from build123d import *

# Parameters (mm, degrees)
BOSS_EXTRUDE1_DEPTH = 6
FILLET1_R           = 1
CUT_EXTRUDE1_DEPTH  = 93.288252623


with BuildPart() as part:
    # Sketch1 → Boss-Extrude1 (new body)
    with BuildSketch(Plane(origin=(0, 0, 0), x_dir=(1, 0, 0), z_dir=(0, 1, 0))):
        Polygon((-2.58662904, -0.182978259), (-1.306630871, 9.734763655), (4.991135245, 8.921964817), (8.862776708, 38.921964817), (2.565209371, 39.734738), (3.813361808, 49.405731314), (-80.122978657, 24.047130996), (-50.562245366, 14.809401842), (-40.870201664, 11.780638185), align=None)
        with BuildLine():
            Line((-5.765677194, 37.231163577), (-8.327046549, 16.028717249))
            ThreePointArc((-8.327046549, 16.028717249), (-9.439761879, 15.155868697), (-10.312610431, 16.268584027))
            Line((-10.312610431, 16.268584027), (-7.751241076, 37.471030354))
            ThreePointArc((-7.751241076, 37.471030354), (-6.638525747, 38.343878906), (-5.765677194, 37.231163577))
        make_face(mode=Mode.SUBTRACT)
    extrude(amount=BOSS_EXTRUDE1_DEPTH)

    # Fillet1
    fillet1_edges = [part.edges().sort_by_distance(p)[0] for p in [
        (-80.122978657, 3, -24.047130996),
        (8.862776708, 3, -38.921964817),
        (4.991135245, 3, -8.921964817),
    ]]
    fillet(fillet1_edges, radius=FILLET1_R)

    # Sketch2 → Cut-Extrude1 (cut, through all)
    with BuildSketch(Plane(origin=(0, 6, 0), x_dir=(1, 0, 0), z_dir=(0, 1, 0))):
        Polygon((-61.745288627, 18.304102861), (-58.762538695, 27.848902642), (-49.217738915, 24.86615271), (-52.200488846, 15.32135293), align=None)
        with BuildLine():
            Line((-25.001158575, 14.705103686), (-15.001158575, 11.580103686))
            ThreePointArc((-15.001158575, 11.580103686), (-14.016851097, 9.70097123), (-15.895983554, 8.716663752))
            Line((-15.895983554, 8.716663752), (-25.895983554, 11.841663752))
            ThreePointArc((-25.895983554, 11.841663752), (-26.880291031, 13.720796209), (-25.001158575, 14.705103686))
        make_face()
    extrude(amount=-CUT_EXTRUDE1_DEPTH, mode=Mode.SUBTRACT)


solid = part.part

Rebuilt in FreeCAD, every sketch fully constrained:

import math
import FreeCAD as App
import Part
import Sketcher

V = App.Vector


def edges_at(feature, points):
    """Names of the edges that pass closest to the given points."""
    edges = feature.Shape.Edges
    near = lambda p: min(range(len(edges)), key=lambda i: edges[i].distToShape(Part.Vertex(*p))[0])
    return sorted({f"Edge{near(p) + 1}" for p in points})


def add_polygon(sketch, points):
    """Adds a closed chain of lines whose ends are joined by coincident constraints."""
    first, n = sketch.GeometryCount, len(points)
    for a, b in zip(points, points[1:] + points[:1]):
        sketch.addGeometry(Part.LineSegment(App.Vector(*a, 0), App.Vector(*b, 0)), False)
    for i in range(n):
        sketch.addConstraint(Sketcher.Constraint("Coincident", first + i, 2, first + (i + 1) % n, 1))

doc = App.newDocument("Part")
body = doc.addObject("PartDesign::Body", "Body")

sketch1 = body.newObject("Sketcher::SketchObject", "Sketch")
sketch1.AttachmentSupport = (doc.getObject("XZ_Plane"), [""])
sketch1.MapMode = "FlatFace"
add_polygon(sketch1, [(-2.6, 0.2), (-1.3, -9.7), (5, -8.9), (8.9, -38.9), (2.6, -39.7), (3.8, -49.4), (-80.1, -24), (-50.6, -14.8), (-40.9, -11.8)])
sketch1.addGeometry(Part.ArcOfCircle(Part.Circle(V(-6.8, -37.4, 0), V(0, 0, 1), 1), math.radians(-173), math.radians(7)), False)
sketch1.addGeometry(Part.LineSegment(V(-5.8, -37.2, 0), V(-8.3, -16, 0)), False)
sketch1.addGeometry(Part.ArcOfCircle(Part.Circle(V(-9.3, -16.1, 0), V(0, 0, 1), 1), math.radians(7), math.radians(187)), False)
sketch1.addGeometry(Part.LineSegment(V(-10.3, -16.3, 0), V(-7.8, -37.5, 0)), False)
sketch1.addConstraint(Sketcher.Constraint("Tangent", 9, 2, 10, 1))
sketch1.addConstraint(Sketcher.Constraint("Tangent", 10, 2, 11, 1))
sketch1.addConstraint(Sketcher.Constraint("Tangent", 11, 2, 12, 1))
sketch1.addConstraint(Sketcher.Constraint("Tangent", 12, 2, 9, 1))
sketch1.addConstraint(Sketcher.Constraint("Equal", 9, 11))
sketch1.addConstraint(Sketcher.Constraint("Perpendicular", 0, 1))
sketch1.addConstraint(Sketcher.Constraint("Parallel", 1, 3))
sketch1.addConstraint(Sketcher.Constraint("Perpendicular", 3, 4))
sketch1.addConstraint(Sketcher.Constraint("Parallel", 6, 7))
sketch1.addConstraint(Sketcher.Constraint("Parallel", 7, 8))
sketch1.addConstraint(Sketcher.Constraint("Radius", 9, 1.0))
sketch1.addConstraint(Sketcher.Constraint("Distance", 0, 10.0))
sketch1.addConstraint(Sketcher.Constraint("DistanceY", 2, 2, 1, 2, 30.0))
sketch1.addConstraint(Sketcher.Constraint("Distance", 1, 6.35))
sketch1.addConstraint(Sketcher.Constraint("DistanceX", 8, 2, 0, 2, 1.279998))
sketch1.addConstraint(Sketcher.Constraint("Distance", 3, 6.3498))
sketch1.addConstraint(Sketcher.Constraint("Distance", 10, 21.3566))
sketch1.addConstraint(Sketcher.Constraint("DistanceY", 6, 2, -1, 1, 14.809402))
sketch1.addConstraint(Sketcher.Constraint("DistanceX", 7, 2, -1, 1, 40.870202))
sketch1.addConstraint(Sketcher.Constraint("DistanceX", 11, 3, 8, 2, 6.733199))
sketch1.addConstraint(Sketcher.Constraint("DistanceY", 2, 2, 9, 2, 1.690801))
sketch1.addConstraint(Sketcher.Constraint("DistanceY", 4, 2, 12, 2, 11.934701))
sketch1.addConstraint(Sketcher.Constraint("Distance", 5, 87.683339))
sketch1.addConstraint(Sketcher.Constraint("Distance", 6, 30.970512))
sketch1.addConstraint(Sketcher.Constraint("Distance", 8, 40.109351))
sketch1.addConstraint(Sketcher.Constraint("DistanceX", 9, 3, -1, 1, 6.758459))
sketch1.addConstraint(Sketcher.Constraint("DistanceX", 11, 3, -1, 1, 9.319828))
sketch1.addConstraint(Sketcher.Constraint("DistanceY", 11, 3, -1, 1, 16.148651))
pad1 = body.newObject("PartDesign::Pad", "Pad")
pad1.Profile = sketch1
pad1.Length = 6
pad1.Reversed = True
doc.recompute()

fillet = body.newObject("PartDesign::Fillet", "Fillet")
fillet.Base = (pad1, edges_at(pad1, [(-80.123, 3, -24.047), (8.863, 3, -38.922), (4.991, 3, -8.922)]))
fillet.Radius = 1

sketch2 = body.newObject("Sketcher::SketchObject", "Sketch001")
sketch2.AttachmentSupport = (doc.getObject("XZ_Plane"), [""])
sketch2.MapMode = "FlatFace"
sketch2.AttachmentOffset = App.Placement(V(0, 0, -6), App.Rotation())
add_polygon(sketch2, [(-58.8, -27.8), (-61.7, -18.3), (-52.2, -15.3), (-49.2, -24.9)])
sketch2.addGeometry(Part.LineSegment(V(-15, -11.6, 0), V(-25, -14.7, 0)), False)
sketch2.addGeometry(Part.ArcOfCircle(Part.Circle(V(-25.4, -13.3, 0), V(0, 0, 1), 1.5), math.radians(107), math.radians(287)), False)
sketch2.addGeometry(Part.LineSegment(V(-25.9, -11.8, 0), V(-15.9, -8.7, 0)), False)
sketch2.addGeometry(Part.ArcOfCircle(Part.Circle(V(-15.4, -10.1, 0), V(0, 0, 1), 1.5), math.radians(-73), math.radians(107)), False)
sketch2.addConstraint(Sketcher.Constraint("Tangent", 4, 2, 5, 2))
sketch2.addConstraint(Sketcher.Constraint("Tangent", 5, 1, 6, 1))
sketch2.addConstraint(Sketcher.Constraint("Tangent", 6, 2, 7, 2))
sketch2.addConstraint(Sketcher.Constraint("Tangent", 7, 1, 4, 1))
sketch2.addConstraint(Sketcher.Constraint("Equal", 5, 7))
sketch2.addConstraint(Sketcher.Constraint("Perpendicular", 0, 1))
sketch2.addConstraint(Sketcher.Constraint("Perpendicular", 1, 2))
sketch2.addConstraint(Sketcher.Constraint("Perpendicular", 2, 3))
sketch2.addConstraint(Sketcher.Constraint("Parallel", 3, 4))
sketch2.addConstraint(Sketcher.Constraint("Equal", 0, 1))
sketch2.addConstraint(Sketcher.Constraint("Radius", 5, 1.5))
sketch2.addConstraint(Sketcher.Constraint("Distance", 0, 10.0))
sketch2.addConstraint(Sketcher.Constraint("DistanceX", 5, 3, 7, 3, 10.0))
sketch2.addConstraint(Sketcher.Constraint("DistanceY", 5, 3, 7, 3, 3.125))
sketch2.addConstraint(Sketcher.Constraint("DistanceY", 3, 2, 4, 2, 13.143799))
sketch2.addConstraint(Sketcher.Constraint("DistanceX", 5, 3, -1, 1, 25.448571))
sketch2.addConstraint(Sketcher.Constraint("DistanceX", 0, 2, -1, 1, 61.745289))
sketch2.addConstraint(Sketcher.Constraint("DistanceY", 5, 3, -1, 1, 13.273384))
pocket1 = body.newObject("PartDesign::Pocket", "Pocket")
pocket1.Profile = sketch2
pocket1.Type = "ThroughAll"
pocket1.Reversed = True

doc.recompute()
